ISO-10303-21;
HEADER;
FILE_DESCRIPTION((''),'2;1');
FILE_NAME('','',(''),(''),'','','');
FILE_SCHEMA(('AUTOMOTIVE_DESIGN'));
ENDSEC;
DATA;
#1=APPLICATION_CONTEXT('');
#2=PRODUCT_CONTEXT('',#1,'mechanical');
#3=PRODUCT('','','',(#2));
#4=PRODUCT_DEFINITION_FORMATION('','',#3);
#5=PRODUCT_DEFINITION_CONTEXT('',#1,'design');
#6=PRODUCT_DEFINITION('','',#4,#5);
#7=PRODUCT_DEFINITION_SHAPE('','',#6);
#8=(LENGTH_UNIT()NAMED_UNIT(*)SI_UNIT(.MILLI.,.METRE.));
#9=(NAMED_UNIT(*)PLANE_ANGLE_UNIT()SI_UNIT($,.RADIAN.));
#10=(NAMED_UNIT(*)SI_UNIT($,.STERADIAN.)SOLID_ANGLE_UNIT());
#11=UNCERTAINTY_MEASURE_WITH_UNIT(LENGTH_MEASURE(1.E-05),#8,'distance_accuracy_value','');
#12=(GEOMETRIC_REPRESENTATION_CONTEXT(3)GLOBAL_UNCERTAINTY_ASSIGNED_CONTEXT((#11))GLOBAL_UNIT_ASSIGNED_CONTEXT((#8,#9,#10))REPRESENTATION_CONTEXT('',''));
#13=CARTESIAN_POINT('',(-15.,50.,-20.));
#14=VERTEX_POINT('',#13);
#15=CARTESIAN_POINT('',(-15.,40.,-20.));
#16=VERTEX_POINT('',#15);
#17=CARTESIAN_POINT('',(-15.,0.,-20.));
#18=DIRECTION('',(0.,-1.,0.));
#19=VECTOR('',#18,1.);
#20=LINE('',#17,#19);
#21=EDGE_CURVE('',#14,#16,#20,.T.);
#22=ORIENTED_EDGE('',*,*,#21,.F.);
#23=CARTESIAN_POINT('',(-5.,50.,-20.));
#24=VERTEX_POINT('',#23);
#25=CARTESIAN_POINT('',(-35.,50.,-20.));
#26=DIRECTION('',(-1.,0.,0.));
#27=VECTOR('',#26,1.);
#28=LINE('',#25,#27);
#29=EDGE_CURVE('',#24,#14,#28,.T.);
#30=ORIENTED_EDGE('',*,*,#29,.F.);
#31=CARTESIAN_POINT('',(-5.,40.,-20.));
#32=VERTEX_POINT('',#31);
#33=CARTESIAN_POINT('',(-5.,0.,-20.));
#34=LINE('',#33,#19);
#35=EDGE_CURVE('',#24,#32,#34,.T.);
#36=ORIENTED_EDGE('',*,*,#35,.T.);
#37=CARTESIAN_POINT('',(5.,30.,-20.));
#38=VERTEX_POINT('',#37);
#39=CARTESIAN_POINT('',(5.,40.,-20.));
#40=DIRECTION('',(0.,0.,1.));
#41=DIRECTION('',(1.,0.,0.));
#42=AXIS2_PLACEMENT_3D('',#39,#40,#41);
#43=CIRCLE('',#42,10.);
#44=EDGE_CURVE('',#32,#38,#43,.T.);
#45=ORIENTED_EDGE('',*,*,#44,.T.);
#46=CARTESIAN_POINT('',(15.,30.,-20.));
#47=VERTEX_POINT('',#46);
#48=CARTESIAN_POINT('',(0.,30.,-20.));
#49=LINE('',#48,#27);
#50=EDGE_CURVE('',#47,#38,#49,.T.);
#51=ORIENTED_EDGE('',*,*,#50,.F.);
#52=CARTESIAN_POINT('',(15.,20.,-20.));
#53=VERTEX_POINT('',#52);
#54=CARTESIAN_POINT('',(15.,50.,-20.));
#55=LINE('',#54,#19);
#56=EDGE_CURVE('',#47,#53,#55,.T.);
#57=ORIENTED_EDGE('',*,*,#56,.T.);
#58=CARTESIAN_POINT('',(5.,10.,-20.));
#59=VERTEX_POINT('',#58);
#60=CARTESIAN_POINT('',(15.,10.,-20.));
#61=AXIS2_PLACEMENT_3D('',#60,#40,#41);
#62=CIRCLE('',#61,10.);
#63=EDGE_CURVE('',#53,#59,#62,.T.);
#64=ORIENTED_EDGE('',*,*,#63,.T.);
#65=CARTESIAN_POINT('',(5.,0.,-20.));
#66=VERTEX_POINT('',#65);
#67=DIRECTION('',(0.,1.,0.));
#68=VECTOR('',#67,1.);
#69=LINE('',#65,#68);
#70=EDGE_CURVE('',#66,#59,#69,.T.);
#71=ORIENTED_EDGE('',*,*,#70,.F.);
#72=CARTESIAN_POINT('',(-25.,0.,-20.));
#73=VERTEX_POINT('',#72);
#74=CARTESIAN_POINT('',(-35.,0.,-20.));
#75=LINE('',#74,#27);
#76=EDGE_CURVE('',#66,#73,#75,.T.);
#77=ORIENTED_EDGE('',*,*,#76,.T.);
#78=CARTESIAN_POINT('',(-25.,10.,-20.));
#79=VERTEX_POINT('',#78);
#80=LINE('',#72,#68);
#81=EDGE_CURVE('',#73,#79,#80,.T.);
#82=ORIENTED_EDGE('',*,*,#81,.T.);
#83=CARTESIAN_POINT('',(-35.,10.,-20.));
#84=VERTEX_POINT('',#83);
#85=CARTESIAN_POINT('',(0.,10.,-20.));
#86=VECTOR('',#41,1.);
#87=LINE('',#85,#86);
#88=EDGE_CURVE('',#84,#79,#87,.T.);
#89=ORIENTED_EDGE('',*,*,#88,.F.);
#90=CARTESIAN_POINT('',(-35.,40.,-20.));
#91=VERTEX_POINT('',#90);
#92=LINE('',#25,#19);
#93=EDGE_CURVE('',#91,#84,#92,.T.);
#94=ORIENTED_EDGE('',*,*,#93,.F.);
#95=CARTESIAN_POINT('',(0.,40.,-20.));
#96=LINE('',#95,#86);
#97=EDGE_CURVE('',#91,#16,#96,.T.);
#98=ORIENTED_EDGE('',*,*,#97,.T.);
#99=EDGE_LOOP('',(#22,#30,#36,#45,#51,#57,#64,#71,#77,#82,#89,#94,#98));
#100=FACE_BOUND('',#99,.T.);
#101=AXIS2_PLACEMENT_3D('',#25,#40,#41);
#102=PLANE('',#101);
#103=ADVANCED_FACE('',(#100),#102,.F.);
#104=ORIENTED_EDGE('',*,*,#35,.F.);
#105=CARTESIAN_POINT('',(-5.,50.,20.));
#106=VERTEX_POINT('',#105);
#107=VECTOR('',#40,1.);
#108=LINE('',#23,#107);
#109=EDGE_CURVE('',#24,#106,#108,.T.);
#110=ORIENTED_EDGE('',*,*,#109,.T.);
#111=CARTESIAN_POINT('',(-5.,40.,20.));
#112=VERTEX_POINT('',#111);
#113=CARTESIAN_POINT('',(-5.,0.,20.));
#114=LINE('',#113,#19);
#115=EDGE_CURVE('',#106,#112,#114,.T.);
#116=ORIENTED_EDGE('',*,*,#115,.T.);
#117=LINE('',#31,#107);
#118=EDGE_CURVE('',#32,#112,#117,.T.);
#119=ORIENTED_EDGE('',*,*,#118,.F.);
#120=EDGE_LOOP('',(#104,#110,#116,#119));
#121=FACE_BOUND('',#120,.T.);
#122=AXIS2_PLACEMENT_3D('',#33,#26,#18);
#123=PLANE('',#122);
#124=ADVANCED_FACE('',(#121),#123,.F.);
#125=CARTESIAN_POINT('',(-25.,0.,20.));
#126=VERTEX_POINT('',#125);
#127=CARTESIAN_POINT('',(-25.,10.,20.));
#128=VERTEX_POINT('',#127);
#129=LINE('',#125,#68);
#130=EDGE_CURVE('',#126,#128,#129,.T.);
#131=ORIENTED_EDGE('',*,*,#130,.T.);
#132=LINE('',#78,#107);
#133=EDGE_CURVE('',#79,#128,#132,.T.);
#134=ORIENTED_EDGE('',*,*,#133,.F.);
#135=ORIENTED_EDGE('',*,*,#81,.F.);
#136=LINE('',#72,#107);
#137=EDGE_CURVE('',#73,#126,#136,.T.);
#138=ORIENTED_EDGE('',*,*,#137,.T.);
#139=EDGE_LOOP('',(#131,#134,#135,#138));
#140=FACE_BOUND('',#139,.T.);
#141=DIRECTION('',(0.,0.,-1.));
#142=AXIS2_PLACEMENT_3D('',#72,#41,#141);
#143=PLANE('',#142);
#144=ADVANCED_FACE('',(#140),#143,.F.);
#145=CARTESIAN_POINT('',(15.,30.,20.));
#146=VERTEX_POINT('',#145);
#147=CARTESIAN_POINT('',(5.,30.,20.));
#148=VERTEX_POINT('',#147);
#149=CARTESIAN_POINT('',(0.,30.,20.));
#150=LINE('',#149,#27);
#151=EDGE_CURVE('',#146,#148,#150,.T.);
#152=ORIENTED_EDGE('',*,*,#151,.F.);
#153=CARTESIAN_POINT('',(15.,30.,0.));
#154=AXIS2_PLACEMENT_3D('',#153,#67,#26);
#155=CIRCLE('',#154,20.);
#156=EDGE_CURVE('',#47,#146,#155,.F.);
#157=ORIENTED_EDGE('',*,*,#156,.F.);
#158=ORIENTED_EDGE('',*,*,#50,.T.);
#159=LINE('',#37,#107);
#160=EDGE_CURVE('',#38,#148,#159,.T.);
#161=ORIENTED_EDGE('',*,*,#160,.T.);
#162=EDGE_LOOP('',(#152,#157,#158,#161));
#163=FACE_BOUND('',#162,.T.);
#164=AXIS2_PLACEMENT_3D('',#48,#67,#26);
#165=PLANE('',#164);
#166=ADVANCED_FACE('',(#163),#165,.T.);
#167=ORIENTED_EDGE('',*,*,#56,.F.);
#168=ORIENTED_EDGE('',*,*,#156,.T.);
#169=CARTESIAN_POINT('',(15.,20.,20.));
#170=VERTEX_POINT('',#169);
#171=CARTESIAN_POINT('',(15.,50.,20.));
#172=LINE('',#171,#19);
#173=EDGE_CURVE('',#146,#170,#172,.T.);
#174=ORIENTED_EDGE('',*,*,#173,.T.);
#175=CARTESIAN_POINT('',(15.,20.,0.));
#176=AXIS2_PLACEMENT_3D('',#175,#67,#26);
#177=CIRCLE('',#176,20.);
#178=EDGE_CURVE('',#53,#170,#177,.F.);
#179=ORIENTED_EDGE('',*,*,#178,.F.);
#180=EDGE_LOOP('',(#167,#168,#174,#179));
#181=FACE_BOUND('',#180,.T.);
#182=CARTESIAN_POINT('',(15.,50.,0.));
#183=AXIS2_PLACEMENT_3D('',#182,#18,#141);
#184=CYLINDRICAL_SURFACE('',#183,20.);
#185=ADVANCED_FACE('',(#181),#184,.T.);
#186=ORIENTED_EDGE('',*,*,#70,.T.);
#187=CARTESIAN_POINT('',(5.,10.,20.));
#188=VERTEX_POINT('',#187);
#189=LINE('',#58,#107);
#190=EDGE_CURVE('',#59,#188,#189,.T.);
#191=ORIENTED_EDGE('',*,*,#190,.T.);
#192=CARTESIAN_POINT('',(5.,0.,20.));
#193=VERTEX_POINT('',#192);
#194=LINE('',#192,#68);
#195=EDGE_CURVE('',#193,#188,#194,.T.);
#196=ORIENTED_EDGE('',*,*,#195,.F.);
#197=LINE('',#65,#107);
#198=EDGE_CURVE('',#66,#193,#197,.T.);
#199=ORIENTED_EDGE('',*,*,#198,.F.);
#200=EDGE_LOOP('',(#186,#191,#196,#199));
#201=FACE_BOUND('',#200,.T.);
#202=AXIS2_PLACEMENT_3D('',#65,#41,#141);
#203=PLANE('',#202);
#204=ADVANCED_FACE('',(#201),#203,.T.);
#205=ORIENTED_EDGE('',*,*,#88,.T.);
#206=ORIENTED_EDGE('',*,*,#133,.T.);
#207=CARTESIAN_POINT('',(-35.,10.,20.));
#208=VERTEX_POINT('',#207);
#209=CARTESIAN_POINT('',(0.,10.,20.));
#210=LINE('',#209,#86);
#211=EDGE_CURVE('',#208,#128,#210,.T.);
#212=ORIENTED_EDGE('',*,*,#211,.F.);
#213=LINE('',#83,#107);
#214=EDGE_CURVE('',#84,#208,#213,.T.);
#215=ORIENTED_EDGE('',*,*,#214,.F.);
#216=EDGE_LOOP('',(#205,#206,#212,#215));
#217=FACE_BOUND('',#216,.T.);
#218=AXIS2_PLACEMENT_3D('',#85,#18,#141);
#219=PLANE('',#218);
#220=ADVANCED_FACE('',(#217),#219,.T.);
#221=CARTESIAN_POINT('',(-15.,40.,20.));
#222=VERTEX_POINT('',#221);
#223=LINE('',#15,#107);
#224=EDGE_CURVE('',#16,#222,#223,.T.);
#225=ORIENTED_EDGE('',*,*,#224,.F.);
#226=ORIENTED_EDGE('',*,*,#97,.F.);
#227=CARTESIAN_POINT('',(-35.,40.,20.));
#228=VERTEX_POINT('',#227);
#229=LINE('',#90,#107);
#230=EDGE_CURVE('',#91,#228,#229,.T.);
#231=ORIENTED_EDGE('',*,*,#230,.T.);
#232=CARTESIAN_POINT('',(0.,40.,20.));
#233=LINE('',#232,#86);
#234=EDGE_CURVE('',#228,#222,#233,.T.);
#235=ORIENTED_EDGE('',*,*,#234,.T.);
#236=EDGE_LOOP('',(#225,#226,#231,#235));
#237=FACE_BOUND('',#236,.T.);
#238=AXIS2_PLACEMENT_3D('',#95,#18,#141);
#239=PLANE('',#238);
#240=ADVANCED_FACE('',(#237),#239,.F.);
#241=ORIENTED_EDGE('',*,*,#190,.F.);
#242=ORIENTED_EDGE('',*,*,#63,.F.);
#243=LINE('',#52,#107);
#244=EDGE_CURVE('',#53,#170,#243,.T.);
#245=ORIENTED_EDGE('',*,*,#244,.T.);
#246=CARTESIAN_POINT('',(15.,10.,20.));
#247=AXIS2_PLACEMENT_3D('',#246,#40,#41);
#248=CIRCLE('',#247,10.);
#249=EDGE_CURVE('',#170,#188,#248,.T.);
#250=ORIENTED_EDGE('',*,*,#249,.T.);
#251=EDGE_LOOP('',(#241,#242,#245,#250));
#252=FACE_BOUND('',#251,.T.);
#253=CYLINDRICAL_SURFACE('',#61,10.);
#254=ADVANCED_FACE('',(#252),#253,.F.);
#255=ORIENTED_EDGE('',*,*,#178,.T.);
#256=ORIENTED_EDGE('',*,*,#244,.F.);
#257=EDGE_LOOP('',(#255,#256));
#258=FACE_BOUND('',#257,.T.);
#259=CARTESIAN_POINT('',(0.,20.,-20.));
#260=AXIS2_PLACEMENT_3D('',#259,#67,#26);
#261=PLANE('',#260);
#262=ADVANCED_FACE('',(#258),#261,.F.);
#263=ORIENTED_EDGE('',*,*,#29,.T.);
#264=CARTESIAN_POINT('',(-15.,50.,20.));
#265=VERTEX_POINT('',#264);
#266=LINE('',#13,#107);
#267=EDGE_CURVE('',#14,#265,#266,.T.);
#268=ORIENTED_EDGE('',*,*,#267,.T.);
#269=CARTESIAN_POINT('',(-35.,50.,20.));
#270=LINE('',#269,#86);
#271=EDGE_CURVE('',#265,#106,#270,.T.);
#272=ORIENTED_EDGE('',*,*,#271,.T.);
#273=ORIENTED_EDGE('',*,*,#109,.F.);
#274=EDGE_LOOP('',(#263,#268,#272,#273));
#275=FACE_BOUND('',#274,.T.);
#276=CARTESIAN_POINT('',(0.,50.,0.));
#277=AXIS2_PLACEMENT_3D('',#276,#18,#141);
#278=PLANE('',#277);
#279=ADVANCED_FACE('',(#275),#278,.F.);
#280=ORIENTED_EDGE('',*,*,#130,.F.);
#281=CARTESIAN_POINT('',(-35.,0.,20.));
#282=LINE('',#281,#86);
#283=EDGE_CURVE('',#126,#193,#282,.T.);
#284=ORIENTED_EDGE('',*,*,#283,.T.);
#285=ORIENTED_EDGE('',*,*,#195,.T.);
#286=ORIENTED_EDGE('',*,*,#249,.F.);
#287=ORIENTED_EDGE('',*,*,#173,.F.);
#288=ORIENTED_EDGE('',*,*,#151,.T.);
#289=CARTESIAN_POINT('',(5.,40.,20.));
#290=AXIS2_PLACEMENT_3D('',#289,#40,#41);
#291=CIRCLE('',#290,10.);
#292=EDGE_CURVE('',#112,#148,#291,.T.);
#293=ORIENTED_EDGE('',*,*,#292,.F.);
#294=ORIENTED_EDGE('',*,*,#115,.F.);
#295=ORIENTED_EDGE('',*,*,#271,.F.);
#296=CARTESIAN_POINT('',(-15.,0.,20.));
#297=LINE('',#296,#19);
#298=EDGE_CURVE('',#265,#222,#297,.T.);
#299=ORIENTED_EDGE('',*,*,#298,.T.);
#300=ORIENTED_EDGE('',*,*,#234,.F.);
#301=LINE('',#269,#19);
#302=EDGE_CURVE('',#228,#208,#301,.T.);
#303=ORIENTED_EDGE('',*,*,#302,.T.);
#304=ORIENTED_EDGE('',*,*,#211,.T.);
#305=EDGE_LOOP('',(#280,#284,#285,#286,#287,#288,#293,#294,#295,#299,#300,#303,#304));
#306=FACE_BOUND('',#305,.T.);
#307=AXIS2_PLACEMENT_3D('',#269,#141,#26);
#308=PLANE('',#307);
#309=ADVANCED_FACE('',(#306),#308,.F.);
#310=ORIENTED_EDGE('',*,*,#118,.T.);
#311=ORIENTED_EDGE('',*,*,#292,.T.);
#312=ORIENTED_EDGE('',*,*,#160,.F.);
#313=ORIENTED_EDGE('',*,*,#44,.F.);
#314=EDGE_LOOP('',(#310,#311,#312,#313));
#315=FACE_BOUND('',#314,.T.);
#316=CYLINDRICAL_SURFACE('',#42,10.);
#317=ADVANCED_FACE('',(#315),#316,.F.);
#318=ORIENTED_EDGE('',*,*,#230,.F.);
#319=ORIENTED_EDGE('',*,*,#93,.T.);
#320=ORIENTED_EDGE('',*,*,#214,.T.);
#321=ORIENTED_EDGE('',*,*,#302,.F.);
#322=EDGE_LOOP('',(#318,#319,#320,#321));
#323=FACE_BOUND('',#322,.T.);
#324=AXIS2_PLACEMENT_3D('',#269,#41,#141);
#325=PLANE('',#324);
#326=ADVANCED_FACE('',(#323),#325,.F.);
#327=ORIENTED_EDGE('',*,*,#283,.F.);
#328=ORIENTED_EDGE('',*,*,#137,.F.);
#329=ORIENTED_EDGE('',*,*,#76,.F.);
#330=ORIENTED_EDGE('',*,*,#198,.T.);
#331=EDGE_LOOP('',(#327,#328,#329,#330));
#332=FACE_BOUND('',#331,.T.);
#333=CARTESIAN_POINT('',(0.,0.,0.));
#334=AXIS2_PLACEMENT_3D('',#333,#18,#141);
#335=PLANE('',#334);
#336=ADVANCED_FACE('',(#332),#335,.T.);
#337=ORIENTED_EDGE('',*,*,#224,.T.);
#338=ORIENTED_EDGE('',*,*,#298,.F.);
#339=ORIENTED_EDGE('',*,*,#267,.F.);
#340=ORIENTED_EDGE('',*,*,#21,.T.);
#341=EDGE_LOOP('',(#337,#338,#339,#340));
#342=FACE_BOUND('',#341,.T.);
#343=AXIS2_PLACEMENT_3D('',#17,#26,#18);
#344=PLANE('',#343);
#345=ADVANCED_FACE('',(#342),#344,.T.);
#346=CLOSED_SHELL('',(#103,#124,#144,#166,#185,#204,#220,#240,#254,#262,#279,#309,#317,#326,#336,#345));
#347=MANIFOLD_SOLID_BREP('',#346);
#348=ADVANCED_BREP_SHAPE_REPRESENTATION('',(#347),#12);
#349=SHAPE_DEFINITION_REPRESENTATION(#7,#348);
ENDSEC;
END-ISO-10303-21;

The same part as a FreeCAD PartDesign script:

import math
import FreeCAD as App
import Part
import Sketcher

doc = App.newDocument("Part")
params = doc.addObject("Spreadsheet::Sheet", "Params")
for row, (alias, value) in enumerate([
    ("sketch1_width", "70 mm"),
    ("sketch1_height", "40 mm"),
    ("pad1_length", "50 mm"),
    ("sketch2_radius", "10 mm"),
    ("sketch2_width", "20 mm"),
    ("sketch3_radius", "20 mm"),
], start=1):
    params.set(f"A{row}", alias)
    params.set(f"B{row}", "=" + value)
    params.setAlias(f"B{row}", alias)

body = doc.addObject("PartDesign::Body", "Body")

sketch1 = doc.addObject("Sketcher::SketchObject", "Sketch")
body.addObject(sketch1)
sketch1.AttachmentSupport = (doc.XZ_Plane, [""])
sketch1.MapMode = "FlatFace"
sketch1.addGeometry([
    Part.LineSegment(App.Vector(-35, -20, 0), App.Vector(-35, 20, 0)),
    Part.LineSegment(App.Vector(-35, 20, 0), App.Vector(35, 20, 0)),
    Part.LineSegment(App.Vector(35, 20, 0), App.Vector(35, -20, 0)),
    Part.LineSegment(App.Vector(35, -20, 0), App.Vector(-35, -20, 0)),
], False)
sketch1.addConstraint([
    Sketcher.Constraint("Coincident", 0, 2, 1, 1),
    Sketcher.Constraint("Coincident", 1, 2, 2, 1),
    Sketcher.Constraint("Coincident", 2, 2, 3, 1),
    Sketcher.Constraint("Coincident", 3, 2, 0, 1),
    Sketcher.Constraint("Vertical", 0),
    Sketcher.Constraint("Horizontal", 1),
    Sketcher.Constraint("Vertical", 2),
    Sketcher.Constraint("Horizontal", 3),
    Sketcher.Constraint("Symmetric", 0, 2, 2, 2, -1, 1),
    Sketcher.Constraint("DistanceX", 1, 1, 1, 2, 70.0),
    Sketcher.Constraint("DistanceY", 0, 1, 0, 2, 40.0),
])
sketch1.setExpression("Constraints[9]", "Params.sketch1_width")
sketch1.setExpression("Constraints[10]", "Params.sketch1_height")
pad1 = doc.addObject("PartDesign::Pad", "Pad")
body.addObject(pad1)
pad1.Profile = sketch1
pad1.setExpression("Length", "Params.pad1_length")
pad1.Reversed = True

sketch2 = doc.addObject("Sketcher::SketchObject", "Sketch001")
body.addObject(sketch2)
sketch2.AttachmentSupport = (doc.XY_Plane, [""])
sketch2.MapMode = "FlatFace"
sketch2.AttachmentOffset = App.Placement(App.Vector(0, 0, 20), App.Rotation())
sketch2.addGeometry([
    Part.LineSegment(App.Vector(-35, 50, 0), App.Vector(-35, 40, 0)),
    Part.LineSegment(App.Vector(-35, 40, 0), App.Vector(-15, 40, 0)),
    Part.LineSegment(App.Vector(-15, 40, 0), App.Vector(-15, 50, 0)),
    Part.LineSegment(App.Vector(-15, 50, 0), App.Vector(-35, 50, 0)),
    Part.LineSegment(App.Vector(5, 30, 0), App.Vector(35, 30, 0)),
    Part.LineSegment(App.Vector(35, 30, 0), App.Vector(35, 50, 0)),
    Part.LineSegment(App.Vector(35, 50, 0), App.Vector(-5, 50, 0)),
    Part.LineSegment(App.Vector(-5, 50, 0), App.Vector(-5, 40, 0)),
    Part.ArcOfCircle(Part.Circle(App.Vector(5, 40, 0), App.Vector(0, 0, 1), 10), math.radians(180), math.radians(270)),
    Part.LineSegment(App.Vector(5, 10, 0), App.Vector(5, 0, 0)),
    Part.LineSegment(App.Vector(5, 0, 0), App.Vector(35, 0, 0)),
    Part.LineSegment(App.Vector(35, 0, 0), App.Vector(35, 20, 0)),
    Part.LineSegment(App.Vector(35, 20, 0), App.Vector(15, 20, 0)),
    Part.ArcOfCircle(Part.Circle(App.Vector(15, 10, 0), App.Vector(0, 0, 1), 10), math.radians(90), math.radians(180)),
    Part.LineSegment(App.Vector(-35, 10, 0), App.Vector(-35, 0, 0)),
    Part.LineSegment(App.Vector(-35, 0, 0), App.Vector(-25, 0, 0)),
    Part.LineSegment(App.Vector(-25, 0, 0), App.Vector(-25, 10, 0)),
    Part.LineSegment(App.Vector(-25, 10, 0), App.Vector(-35, 10, 0)),
], False)
sketch2.addConstraint([
    Sketcher.Constraint("Coincident", 0, 2, 1, 1),
    Sketcher.Constraint("Coincident", 1, 2, 2, 1),
    Sketcher.Constraint("Coincident", 2, 2, 3, 1),
    Sketcher.Constraint("Coincident", 3, 2, 0, 1),
    Sketcher.Constraint("Coincident", 4, 2, 5, 1),
    Sketcher.Constraint("Coincident", 5, 2, 6, 1),
    Sketcher.Constraint("Coincident", 6, 2, 7, 1),
    Sketcher.Constraint("Tangent", 7, 2, 8, 1),
    Sketcher.Constraint("Tangent", 8, 2, 4, 1),
    Sketcher.Constraint("Coincident", 9, 2, 10, 1),
    Sketcher.Constraint("Coincident", 10, 2, 11, 1),
    Sketcher.Constraint("Coincident", 11, 2, 12, 1),
    Sketcher.Constraint("Tangent", 12, 2, 13, 1),
    Sketcher.Constraint("Tangent", 13, 2, 9, 1),
    Sketcher.Constraint("Coincident", 14, 2, 15, 1),
    Sketcher.Constraint("Coincident", 15, 2, 16, 1),
    Sketcher.Constraint("Coincident", 16, 2, 17, 1),
    Sketcher.Constraint("Coincident", 17, 2, 14, 1),
    Sketcher.Constraint("Vertical", 0),
    Sketcher.Constraint("Horizontal", 1),
    Sketcher.Constraint("Vertical", 2),
    Sketcher.Constraint("Horizontal", 3),
    Sketcher.Constraint("Horizontal", 4),
    Sketcher.Constraint("Vertical", 5),
    Sketcher.Constraint("Horizontal", 6),
    Sketcher.Constraint("Vertical", 7),
    Sketcher.Constraint("Vertical", 9),
    Sketcher.Constraint("Horizontal", 10),
    Sketcher.Constraint("Vertical", 11),
    Sketcher.Constraint("Horizontal", 12),
    Sketcher.Constraint("Vertical", 14),
    Sketcher.Constraint("Horizontal", 15),
    Sketcher.Constraint("Vertical", 16),
    Sketcher.Constraint("Horizontal", 17),
    Sketcher.Constraint("Equal", 8, 13),
    Sketcher.Constraint("Symmetric", 10, 2, 14, 2, -1, 1),
    Sketcher.Constraint("Symmetric", 3, 2, 5, 2, -2),
    Sketcher.Constraint("PointOnObject", 9, 2, -1),
    Sketcher.Constraint("Horizontal", 8, 3, 0, 2),
    Sketcher.Constraint("Horizontal", 13, 2, 16, 2),
    Sketcher.Constraint("Vertical", 8, 2, 9, 2),
    Sketcher.Constraint("Vertical", 5, 2, 10, 2),
    Sketcher.Constraint("Equal", 3, 12),
    Sketcher.Constraint("Equal", 17, 0),
    Sketcher.Constraint("Equal", 12, 5),
    Sketcher.Constraint("Equal", 7, 9),
    Sketcher.Constraint("Radius", 8, 10.0),
    Sketcher.Constraint("DistanceX", 1, 1, 1, 2, 20.0),
    Sketcher.Constraint("DistanceX", -1, 1, 8, 3, 5.0),
    Sketcher.Constraint("DistanceY", -1, 1, 8, 3, 40.0),
])
sketch2.setExpression("Constraints[46]", "Params.sketch2_radius")
sketch2.setExpression("Constraints[47]", "Params.sketch2_width")
pocket1 = doc.addObject("PartDesign::Pocket", "Pocket")
body.addObject(pocket1)
pocket1.Profile = sketch2
pocket1.Type = "ThroughAll"

sketch3 = doc.addObject("Sketcher::SketchObject", "Sketch002")
body.addObject(sketch3)
sketch3.AttachmentSupport = (doc.XZ_Plane, [""])
sketch3.MapMode = "FlatFace"
sketch3.addGeometry([
    Part.LineSegment(App.Vector(35, -20, 0), App.Vector(15, -20, 0)),
    Part.ArcOfCircle(Part.Circle(App.Vector(15, 0, 0), App.Vector(0, 0, 1), 20), math.radians(-90), math.radians(0)),
    Part.LineSegment(App.Vector(35, 0, 0), App.Vector(35, -20, 0)),
    Part.LineSegment(App.Vector(35, 20, 0), App.Vector(35, 0, 0)),
    Part.ArcOfCircle(Part.Circle(App.Vector(15, 0, 0), App.Vector(0, 0, 1), 20), math.radians(0), math.radians(90)),
    Part.LineSegment(App.Vector(15, 20, 0), App.Vector(35, 20, 0)),
], False)
sketch3.addConstraint([
    Sketcher.Constraint("Tangent", 0, 2, 1, 1),
    Sketcher.Constraint("Tangent", 1, 2, 2, 1),
    Sketcher.Constraint("Coincident", 2, 2, 0, 1),
    Sketcher.Constraint("Tangent", 3, 2, 4, 1),
    Sketcher.Constraint("Tangent", 4, 2, 5, 1),
    Sketcher.Constraint("Coincident", 5, 2, 3, 1),
    Sketcher.Constraint("Horizontal", 0),
    Sketcher.Constraint("Vertical", 2),
    Sketcher.Constraint("Vertical", 3),
    Sketcher.Constraint("Horizontal", 5),
    Sketcher.Constraint("Coincident", 4, 3, 1, 3),
    Sketcher.Constraint("Equal", 1, 4),
    Sketcher.Constraint("PointOnObject", 1, 3, -1),
    Sketcher.Constraint("Radius", 1, 20.0),
    Sketcher.Constraint("DistanceX", -1, 1, 1, 3, 15.0),
])
sketch3.setExpression("Constraints[13]", "Params.sketch3_radius")
pocket2 = doc.addObject("PartDesign::Pocket", "Pocket001")
body.addObject(pocket2)
pocket2.Profile = sketch3
pocket2.Type = "ThroughAll"
pocket2.Midplane = True

doc.recompute()
